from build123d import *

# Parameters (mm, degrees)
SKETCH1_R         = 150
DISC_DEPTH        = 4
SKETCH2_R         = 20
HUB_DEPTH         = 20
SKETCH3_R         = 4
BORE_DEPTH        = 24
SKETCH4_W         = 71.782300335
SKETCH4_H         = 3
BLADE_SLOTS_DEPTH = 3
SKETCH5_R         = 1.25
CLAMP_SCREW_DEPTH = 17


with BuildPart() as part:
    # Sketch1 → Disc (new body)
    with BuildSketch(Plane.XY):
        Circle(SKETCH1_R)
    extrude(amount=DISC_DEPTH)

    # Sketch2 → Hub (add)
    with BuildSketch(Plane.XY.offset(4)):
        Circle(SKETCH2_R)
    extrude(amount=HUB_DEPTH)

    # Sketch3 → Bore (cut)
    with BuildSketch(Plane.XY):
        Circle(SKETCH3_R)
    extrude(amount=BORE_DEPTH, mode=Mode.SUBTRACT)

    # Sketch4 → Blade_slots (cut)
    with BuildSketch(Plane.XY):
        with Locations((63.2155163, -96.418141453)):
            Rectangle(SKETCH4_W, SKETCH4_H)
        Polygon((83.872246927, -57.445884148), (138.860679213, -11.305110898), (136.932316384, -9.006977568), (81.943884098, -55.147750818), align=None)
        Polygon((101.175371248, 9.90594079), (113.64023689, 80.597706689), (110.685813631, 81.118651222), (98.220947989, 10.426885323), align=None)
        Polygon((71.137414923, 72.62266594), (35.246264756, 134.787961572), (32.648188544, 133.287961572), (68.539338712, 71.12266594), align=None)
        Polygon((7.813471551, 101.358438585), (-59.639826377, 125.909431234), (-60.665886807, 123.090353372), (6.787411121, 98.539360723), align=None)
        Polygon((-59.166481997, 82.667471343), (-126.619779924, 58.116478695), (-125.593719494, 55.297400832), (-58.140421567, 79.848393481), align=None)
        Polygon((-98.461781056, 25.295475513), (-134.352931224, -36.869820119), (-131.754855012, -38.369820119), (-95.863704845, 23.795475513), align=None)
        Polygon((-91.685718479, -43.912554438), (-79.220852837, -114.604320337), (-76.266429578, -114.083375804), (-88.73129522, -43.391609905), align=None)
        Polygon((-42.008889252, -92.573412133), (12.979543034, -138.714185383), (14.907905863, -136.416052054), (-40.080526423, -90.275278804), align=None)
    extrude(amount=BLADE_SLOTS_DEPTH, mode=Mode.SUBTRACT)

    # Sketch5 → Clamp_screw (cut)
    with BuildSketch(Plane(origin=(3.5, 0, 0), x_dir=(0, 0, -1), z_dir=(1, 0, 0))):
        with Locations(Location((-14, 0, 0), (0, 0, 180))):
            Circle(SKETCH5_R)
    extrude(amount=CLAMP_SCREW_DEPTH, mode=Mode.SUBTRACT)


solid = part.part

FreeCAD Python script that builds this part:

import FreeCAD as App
import Part
import Sketcher
Q = App.Units.Quantity


def add_polygon(sketch, points):
    """Adds a closed chain of lines whose ends are joined by coincident constraints."""
    first, n = sketch.GeometryCount, len(points)
    for a, b in zip(points, points[1:] + points[:1]):
        sketch.addGeometry(Part.LineSegment(App.Vector(*a, 0), App.Vector(*b, 0)), False)
    for i in range(n):
        sketch.addConstraint(Sketcher.Constraint("Coincident", first + i, 2, first + (i + 1) % n, 1))

doc = App.newDocument("Part")
body = doc.addObject("PartDesign::Body", "Body")

sketch1 = body.newObject("Sketcher::SketchObject", "Sketch")
sketch1.AttachmentSupport = (doc.getObject("XY_Plane"), [""])
sketch1.MapMode = "FlatFace"
sketch1.addGeometry(Part.Circle(App.Vector(0, 0, 0), App.Vector(0, 0, 1), 150), False)
sketch1.addConstraint(Sketcher.Constraint("Coincident", 0, 3, -1, 1))
sketch1.addConstraint(Sketcher.Constraint("Diameter", 0, Q("300 mm")))
pad1 = body.newObject("PartDesign::Pad", "Pad")
pad1.Profile = sketch1
pad1.Length = 4

sketch2 = body.newObject("Sketcher::SketchObject", "Sketch001")
sketch2.AttachmentSupport = (doc.getObject("XY_Plane"), [""])
sketch2.MapMode = "FlatFace"
sketch2.AttachmentOffset = App.Placement(App.Vector(0, 0, 4), App.Rotation())
sketch2.addGeometry(Part.Circle(App.Vector(0, 0, 0), App.Vector(0, 0, 1), 20), False)
sketch2.addConstraint(Sketcher.Constraint("Coincident", 0, 3, -1, 1))
sketch2.addConstraint(Sketcher.Constraint("Diameter", 0, Q("40 mm")))
pad2 = body.newObject("PartDesign::Pad", "Pad001")
pad2.Profile = sketch2
pad2.Length = 20

sketch3 = body.newObject("Sketcher::SketchObject", "Sketch002")
sketch3.AttachmentSupport = (doc.getObject("XY_Plane"), [""])
sketch3.MapMode = "FlatFace"
sketch3.addGeometry(Part.Circle(App.Vector(0, 0, 0), App.Vector(0, 0, 1), 4), False)
sketch3.addConstraint(Sketcher.Constraint("Coincident", 0, 3, -1, 1))
sketch3.addConstraint(Sketcher.Constraint("Diameter", 0, Q("8 mm")))
pocket1 = body.newObject("PartDesign::Pocket", "Pocket")
pocket1.Profile = sketch3
pocket1.Length = 24
pocket1.Reversed = True

sketch4 = body.newObject("Sketcher::SketchObject", "Sketch003")
sketch4.AttachmentSupport = (doc.getObject("XY_Plane"), [""])
sketch4.MapMode = "FlatFace"
add_polygon(sketch4, [(27.3, -94.9), (27.3, -97.9), (99.1, -97.9), (99.1, -94.9)])
add_polygon(sketch4, [(83.9, -57.4), (138.9, -11.3), (136.9, -9), (81.9, -55.1)])
add_polygon(sketch4, [(101.2, 9.9), (113.6, 80.6), (110.7, 81.1), (98.2, 10.4)])
add_polygon(sketch4, [(71.1, 72.6), (35.2, 134.8), (32.6, 133.3), (68.5, 71.1)])
add_polygon(sketch4, [(7.8, 101.4), (-59.6, 125.9), (-60.7, 123.1), (6.8, 98.5)])
add_polygon(sketch4, [(-59.2, 82.7), (-126.6, 58.1), (-125.6, 55.3), (-58.1, 79.8)])
add_polygon(sketch4, [(-98.5, 25.3), (-134.4, -36.9), (-131.8, -38.4), (-95.9, 23.8)])
add_polygon(sketch4, [(-91.7, -43.9), (-79.2, -114.6), (-76.3, -114.1), (-88.7, -43.4)])
add_polygon(sketch4, [(-42, -92.6), (13, -138.7), (14.9, -136.4), (-40.1, -90.3)])
sketch4.addConstraint(Sketcher.Constraint("Vertical", 0))
sketch4.addConstraint(Sketcher.Constraint("Horizontal", 1))
sketch4.addConstraint(Sketcher.Constraint("Vertical", 2))
sketch4.addConstraint(Sketcher.Constraint("Horizontal", 3))
sketch4.addConstraint(Sketcher.Constraint("Perpendicular", 4, 5))
sketch4.addConstraint(Sketcher.Constraint("Perpendicular", 5, 6))
sketch4.addConstraint(Sketcher.Constraint("Perpendicular", 6, 7))
sketch4.addConstraint(Sketcher.Constraint("Perpendicular", 8, 9))
sketch4.addConstraint(Sketcher.Constraint("Perpendicular", 9, 10))
sketch4.addConstraint(Sketcher.Constraint("Perpendicular", 10, 11))
sketch4.addConstraint(Sketcher.Constraint("Perpendicular", 12, 13))
sketch4.addConstraint(Sketcher.Constraint("Perpendicular", 13, 14))
sketch4.addConstraint(Sketcher.Constraint("Perpendicular", 14, 15))
sketch4.addConstraint(Sketcher.Constraint("Perpendicular", 16, 17))
sketch4.addConstraint(Sketcher.Constraint("Perpendicular", 17, 18))
sketch4.addConstraint(Sketcher.Constraint("Perpendicular", 18, 19))
sketch4.addConstraint(Sketcher.Constraint("Perpendicular", 20, 21))
sketch4.addConstraint(Sketcher.Constraint("Perpendicular", 21, 22))
sketch4.addConstraint(Sketcher.Constraint("Perpendicular", 22, 23))
sketch4.addConstraint(Sketcher.Constraint("Perpendicular", 24, 25))
sketch4.addConstraint(Sketcher.Constraint("Perpendicular", 25, 26))
sketch4.addConstraint(Sketcher.Constraint("Perpendicular", 26, 27))
sketch4.addConstraint(Sketcher.Constraint("Perpendicular", 28, 29))
sketch4.addConstraint(Sketcher.Constraint("Perpendicular", 29, 30))
sketch4.addConstraint(Sketcher.Constraint("Perpendicular", 30, 31))
sketch4.addConstraint(Sketcher.Constraint("Perpendicular", 32, 33))
sketch4.addConstraint(Sketcher.Constraint("Perpendicular", 33, 34))
sketch4.addConstraint(Sketcher.Constraint("Perpendicular", 34, 35))
sketch4.addConstraint(Sketcher.Constraint("Equal", 6, 8))
sketch4.addConstraint(Sketcher.Constraint("Equal", 7, 9))
sketch4.addConstraint(Sketcher.Constraint("Equal", 10, 12))
sketch4.addConstraint(Sketcher.Constraint("Equal", 11, 13))
sketch4.addConstraint(Sketcher.Constraint("Equal", 14, 16))
sketch4.addConstraint(Sketcher.Constraint("Equal", 15, 17))
sketch4.addConstraint(Sketcher.Constraint("Equal", 18, 20))
sketch4.addConstraint(Sketcher.Constraint("Equal", 19, 21))
sketch4.addConstraint(Sketcher.Constraint("Equal", 22, 24))
sketch4.addConstraint(Sketcher.Constraint("Equal", 23, 25))
sketch4.addConstraint(Sketcher.Constraint("Equal", 26, 28))
sketch4.addConstraint(Sketcher.Constraint("Equal", 27, 29))
sketch4.addConstraint(Sketcher.Constraint("Equal", 30, 32))
sketch4.addConstraint(Sketcher.Constraint("Equal", 31, 33))
sketch4.addConstraint(Sketcher.Constraint("DistanceY", 0, 2, 0, 1, Q("3 mm")))
sketch4.addConstraint(Sketcher.Constraint("Angle", 4, Q("40 deg")))
sketch4.addConstraint(Sketcher.Constraint("Angle", 8, Q("80 deg")))
sketch4.addConstraint(Sketcher.Constraint("Angle", 12, Q("120 deg")))
sketch4.addConstraint(Sketcher.Constraint("Angle", 16, Q("160 deg")))
sketch4.addConstraint(Sketcher.Constraint("Angle", 20, Q("-160 deg")))
sketch4.addConstraint(Sketcher.Constraint("Angle", 24, Q("-120 deg")))
sketch4.addConstraint(Sketcher.Constraint("Angle", 28, Q("-80 deg")))
sketch4.addConstraint(Sketcher.Constraint("Angle", 32, Q("-40 deg")))
sketch4.addConstraint(Sketcher.Constraint("Distance", 5, Q("3 mm")))
sketch4.addConstraint(Sketcher.Constraint("DistanceX", 1, 1, 1, 2, Q("71.7823 mm")))
sketch4.addConstraint(Sketcher.Constraint("DistanceX", 20, 2, 27, 2, Q("28.157999 mm")))
sketch4.addConstraint(Sketcher.Constraint("Distance", 4, Q("71.7823 mm")))
sketch4.addConstraint(Sketcher.Constraint("DistanceY", -1, 1, 21, 2, Q("55.297401 mm")))
sketch4.addConstraint(Sketcher.Constraint("DistanceX", 7, 2, 10, 2, Q("14.348701 mm")))
sketch4.addConstraint(Sketcher.Constraint("DistanceX", 14, 2, 8, 2, Q("45.100898 mm")))
sketch4.addConstraint(Sketcher.Constraint("DistanceX", 17, 2, 15, 2, Q("131.803302 mm")))
sketch4.addConstraint(Sketcher.Constraint("DistanceY", 18, 2, 13, 2, Q("34.748601 mm")))
sketch4.addConstraint(Sketcher.Constraint("DistanceY", 24, 2, 20, 2, Q("94.986299 mm")))
sketch4.addConstraint(Sketcher.Constraint("DistanceY", 28, 2, 25, 2, Q("76.2345 mm")))
sketch4.addConstraint(Sketcher.Constraint("DistanceX", 24, 2, 29, 2, Q("58.086502 mm")))
sketch4.addConstraint(Sketcher.Constraint("DistanceY", 0, 2, -1, 1, Q("97.918141 mm")))
sketch4.addConstraint(Sketcher.Constraint("DistanceX", -1, 1, 4, 2, Q("138.860679 mm")))
sketch4.addConstraint(Sketcher.Constraint("DistanceY", 4, 2, -1, 1, Q("11.305111 mm")))
sketch4.addConstraint(Sketcher.Constraint("DistanceY", -1, 1, 9, 2, Q("81.118651 mm")))
sketch4.addConstraint(Sketcher.Constraint("DistanceY", -1, 1, 12, 2, Q("134.787962 mm")))
sketch4.addConstraint(Sketcher.Constraint("DistanceX", 20, 2, -1, 1, Q("126.61978 mm")))
sketch4.addConstraint(Sketcher.Constraint("DistanceY", 34, 2, -1, 1, Q("90.275279 mm")))
sketch4.addConstraint(Sketcher.Constraint("DistanceX", 35, 2, -1, 1, Q("42.008889 mm")))
sketch4.addConstraint(Sketcher.Constraint("DistanceX", 2, 2, 5, 2, Q("37.82565 mm")))
pocket2 = body.newObject("PartDesign::Pocket", "Pocket001")
pocket2.Profile = sketch4
pocket2.Length = 3
pocket2.Reversed = True

sketch5 = body.newObject("Sketcher::SketchObject", "Sketch004")
sketch5.AttachmentSupport = (doc.getObject("YZ_Plane"), [""])
sketch5.MapMode = "FlatFace"
sketch5.AttachmentOffset = App.Placement(App.Vector(0, 0, 3.5), App.Rotation())
sketch5.addGeometry(Part.Circle(App.Vector(0, 14, 0), App.Vector(0, 0, 1), 1.2), False)
sketch5.addConstraint(Sketcher.Constraint("PointOnObject", 0, 3, -2))
sketch5.addConstraint(Sketcher.Constraint("Diameter", 0, Q("2.5 mm")))
sketch5.addConstraint(Sketcher.Constraint("DistanceY", -1, 1, 0, 3, Q("14 mm")))
pocket3 = body.newObject("PartDesign::Pocket", "Pocket002")
pocket3.Profile = sketch5
pocket3.Length = 17
pocket3.Reversed = True

doc.recompute()
